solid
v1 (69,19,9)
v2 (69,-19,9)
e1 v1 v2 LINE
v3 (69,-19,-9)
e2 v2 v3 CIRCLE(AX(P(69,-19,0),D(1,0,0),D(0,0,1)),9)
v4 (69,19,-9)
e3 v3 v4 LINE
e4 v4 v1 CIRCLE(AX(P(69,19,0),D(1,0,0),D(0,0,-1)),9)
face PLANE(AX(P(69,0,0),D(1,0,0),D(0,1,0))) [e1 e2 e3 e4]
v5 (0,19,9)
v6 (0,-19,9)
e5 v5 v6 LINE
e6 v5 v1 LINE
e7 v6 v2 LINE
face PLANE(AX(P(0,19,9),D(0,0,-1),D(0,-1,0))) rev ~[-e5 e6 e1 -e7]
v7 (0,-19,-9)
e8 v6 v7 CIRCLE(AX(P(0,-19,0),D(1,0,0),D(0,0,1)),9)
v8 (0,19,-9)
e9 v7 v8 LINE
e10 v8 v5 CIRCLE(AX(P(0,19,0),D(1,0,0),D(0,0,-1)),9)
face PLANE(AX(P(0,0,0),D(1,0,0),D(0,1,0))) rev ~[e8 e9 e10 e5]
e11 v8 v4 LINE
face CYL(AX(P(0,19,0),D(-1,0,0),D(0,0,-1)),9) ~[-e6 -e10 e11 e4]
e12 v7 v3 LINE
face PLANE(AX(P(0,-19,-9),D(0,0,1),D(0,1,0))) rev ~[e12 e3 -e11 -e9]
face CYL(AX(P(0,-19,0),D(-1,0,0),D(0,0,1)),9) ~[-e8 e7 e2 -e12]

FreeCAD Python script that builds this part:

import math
import FreeCAD as App
import Part
import Sketcher
Q = App.Units.Quantity

doc = App.newDocument("Part")
params = doc.addObject("Spreadsheet::Sheet", "Params")
for row, (alias, value) in enumerate([
    ("sketch1_radius", "9 mm"),
    ("sketch1_width", "38 mm"),
    ("pad1_length", "69 mm"),
], start=1):
    params.set(f"A{row}", alias)
    params.set(f"B{row}", "=" + value)
    params.setAlias(f"B{row}", alias)

body = doc.addObject("PartDesign::Body", "Body")

sketch1 = doc.addObject("Sketcher::SketchObject", "Sketch")
body.addObject(sketch1)
sketch1.AttachmentSupport = (doc.YZ_Plane, [""])
sketch1.MapMode = "FlatFace"
sketch1.addGeometry([
    Part.ArcOfCircle(Part.Circle(App.Vector(-19, 0, 0), App.Vector(0, 0, 1), 9), math.radians(90), math.radians(270)),
    Part.LineSegment(App.Vector(-19, -9, 0), App.Vector(19, -9, 0)),
    Part.ArcOfCircle(Part.Circle(App.Vector(19, 0, 0), App.Vector(0, 0, 1), 9), math.radians(-90), math.radians(90)),
    Part.LineSegment(App.Vector(19, 9, 0), App.Vector(-19, 9, 0)),
], False)
sketch1.addConstraint([
    Sketcher.Constraint("Tangent", 0, 2, 1, 1),
    Sketcher.Constraint("Tangent", 1, 2, 2, 1),
    Sketcher.Constraint("Tangent", 2, 2, 3, 1),
    Sketcher.Constraint("Tangent", 3, 2, 0, 1),
    Sketcher.Constraint("Horizontal", 1),
    Sketcher.Constraint("Horizontal", 3),
    Sketcher.Constraint("Symmetric", 0, 3, 2, 3, -1, 1),
    Sketcher.Constraint("Radius", 0, Q("9 mm")),
    Sketcher.Constraint("DistanceX", 1, 1, 1, 2, Q("38 mm")),
])
sketch1.setExpression("Constraints[7]", "Params.sketch1_radius")
sketch1.setExpression("Constraints[8]", "Params.sketch1_width")
pad1 = doc.addObject("PartDesign::Pad", "Pad")
body.addObject(pad1)
pad1.Profile = sketch1
pad1.setExpression("Length", "Params.pad1_length")

doc.recompute()
